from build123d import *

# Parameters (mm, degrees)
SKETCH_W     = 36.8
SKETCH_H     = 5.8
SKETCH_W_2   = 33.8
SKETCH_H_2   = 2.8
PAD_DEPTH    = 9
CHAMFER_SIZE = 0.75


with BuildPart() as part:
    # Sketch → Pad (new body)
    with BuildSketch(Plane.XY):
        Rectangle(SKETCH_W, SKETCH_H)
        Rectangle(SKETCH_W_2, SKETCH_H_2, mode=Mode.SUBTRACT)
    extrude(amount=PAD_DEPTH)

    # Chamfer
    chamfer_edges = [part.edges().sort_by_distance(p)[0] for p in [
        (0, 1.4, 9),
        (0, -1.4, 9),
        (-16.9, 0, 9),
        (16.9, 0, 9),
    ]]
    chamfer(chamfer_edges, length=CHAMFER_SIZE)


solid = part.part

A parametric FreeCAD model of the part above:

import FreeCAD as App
import Part
import Sketcher
from FreeCAD import Vector


def edges_at(feature, points):
    """Names of the edges that pass closest to the given points."""
    edges = feature.Shape.Edges
    near = lambda p: min(range(len(edges)), key=lambda i: edges[i].distToShape(Part.Vertex(*p))[0])
    return sorted({f"Edge{near(p) + 1}" for p in points})

doc = App.newDocument("Part")
body = doc.addObject("PartDesign::Body", "Body")

# Sketch on XY plane
sketch1 = doc.addObject("Sketcher::SketchObject", "Sketch")
body.addObject(sketch1)
sketch1.AttachmentSupport = (doc.XY_Plane, [""])
sketch1.MapMode = "FlatFace"
sketch1.addGeometry([
    Part.LineSegment(Vector(-18.4, 2.9, 0), Vector(-18.4, -2.9, 0)),  # 0
    Part.LineSegment(Vector(-18.4, -2.9, 0), Vector(18.4, -2.9, 0)),  # 1
    Part.LineSegment(Vector(18.4, -2.9, 0), Vector(18.4, 2.9, 0)),  # 2
    Part.LineSegment(Vector(18.4, 2.9, 0), Vector(-18.4, 2.9, 0)),  # 3
    Part.LineSegment(Vector(16.9, -1.4, 0), Vector(-16.9, -1.4, 0)),  # 4
    Part.LineSegment(Vector(-16.9, -1.4, 0), Vector(-16.9, 1.4, 0)),  # 5
    Part.LineSegment(Vector(-16.9, 1.4, 0), Vector(16.9, 1.4, 0)),  # 6
    Part.LineSegment(Vector(16.9, 1.4, 0), Vector(16.9, -1.4, 0)),  # 7
], False)
sketch1.addConstraint([
    Sketcher.Constraint("Coincident", 0, 2, 1, 1),
    Sketcher.Constraint("Coincident", 1, 2, 2, 1),
    Sketcher.Constraint("Coincident", 2, 2, 3, 1),
    Sketcher.Constraint("Coincident", 3, 2, 0, 1),
    Sketcher.Constraint("Coincident", 4, 2, 5, 1),
    Sketcher.Constraint("Coincident", 5, 2, 6, 1),
    Sketcher.Constraint("Coincident", 6, 2, 7, 1),
    Sketcher.Constraint("Coincident", 7, 2, 4, 1),
    Sketcher.Constraint("Vertical", 0),
    Sketcher.Constraint("Horizontal", 1),
    Sketcher.Constraint("Vertical", 2),
    Sketcher.Constraint("Horizontal", 3),
    Sketcher.Constraint("Horizontal", 4),
    Sketcher.Constraint("Vertical", 5),
    Sketcher.Constraint("Horizontal", 6),
    Sketcher.Constraint("Vertical", 7),
    Sketcher.Constraint("Symmetric", 0, 2, 2, 2, -1, 1),
    Sketcher.Constraint("Symmetric", 4, 2, 6, 2, -1, 1),
    Sketcher.Constraint("DistanceX", 1, 1, 1, 2, 36.8),
    Sketcher.Constraint("DistanceX", 4, 2, 4, 1, 33.8),
    Sketcher.Constraint("DistanceY", 0, 2, 0, 1, 5.8),
    Sketcher.Constraint("DistanceY", 5, 1, 5, 2, 2.8),
])
pad1 = doc.addObject("PartDesign::Pad", "Pad")
body.addObject(pad1)
pad1.Profile = sketch1
pad1.Length = 9
doc.recompute()

chamfer = doc.addObject("PartDesign::Chamfer", "Chamfer")
body.addObject(chamfer)
chamfer.Base = (pad1, edges_at(pad1, [
    (0, 1.4, 9),
    (0, -1.4, 9),
    (-16.9, 0, 9),
    (16.9, 0, 9),
]))
chamfer.Size = 0.75

doc.recompute()
